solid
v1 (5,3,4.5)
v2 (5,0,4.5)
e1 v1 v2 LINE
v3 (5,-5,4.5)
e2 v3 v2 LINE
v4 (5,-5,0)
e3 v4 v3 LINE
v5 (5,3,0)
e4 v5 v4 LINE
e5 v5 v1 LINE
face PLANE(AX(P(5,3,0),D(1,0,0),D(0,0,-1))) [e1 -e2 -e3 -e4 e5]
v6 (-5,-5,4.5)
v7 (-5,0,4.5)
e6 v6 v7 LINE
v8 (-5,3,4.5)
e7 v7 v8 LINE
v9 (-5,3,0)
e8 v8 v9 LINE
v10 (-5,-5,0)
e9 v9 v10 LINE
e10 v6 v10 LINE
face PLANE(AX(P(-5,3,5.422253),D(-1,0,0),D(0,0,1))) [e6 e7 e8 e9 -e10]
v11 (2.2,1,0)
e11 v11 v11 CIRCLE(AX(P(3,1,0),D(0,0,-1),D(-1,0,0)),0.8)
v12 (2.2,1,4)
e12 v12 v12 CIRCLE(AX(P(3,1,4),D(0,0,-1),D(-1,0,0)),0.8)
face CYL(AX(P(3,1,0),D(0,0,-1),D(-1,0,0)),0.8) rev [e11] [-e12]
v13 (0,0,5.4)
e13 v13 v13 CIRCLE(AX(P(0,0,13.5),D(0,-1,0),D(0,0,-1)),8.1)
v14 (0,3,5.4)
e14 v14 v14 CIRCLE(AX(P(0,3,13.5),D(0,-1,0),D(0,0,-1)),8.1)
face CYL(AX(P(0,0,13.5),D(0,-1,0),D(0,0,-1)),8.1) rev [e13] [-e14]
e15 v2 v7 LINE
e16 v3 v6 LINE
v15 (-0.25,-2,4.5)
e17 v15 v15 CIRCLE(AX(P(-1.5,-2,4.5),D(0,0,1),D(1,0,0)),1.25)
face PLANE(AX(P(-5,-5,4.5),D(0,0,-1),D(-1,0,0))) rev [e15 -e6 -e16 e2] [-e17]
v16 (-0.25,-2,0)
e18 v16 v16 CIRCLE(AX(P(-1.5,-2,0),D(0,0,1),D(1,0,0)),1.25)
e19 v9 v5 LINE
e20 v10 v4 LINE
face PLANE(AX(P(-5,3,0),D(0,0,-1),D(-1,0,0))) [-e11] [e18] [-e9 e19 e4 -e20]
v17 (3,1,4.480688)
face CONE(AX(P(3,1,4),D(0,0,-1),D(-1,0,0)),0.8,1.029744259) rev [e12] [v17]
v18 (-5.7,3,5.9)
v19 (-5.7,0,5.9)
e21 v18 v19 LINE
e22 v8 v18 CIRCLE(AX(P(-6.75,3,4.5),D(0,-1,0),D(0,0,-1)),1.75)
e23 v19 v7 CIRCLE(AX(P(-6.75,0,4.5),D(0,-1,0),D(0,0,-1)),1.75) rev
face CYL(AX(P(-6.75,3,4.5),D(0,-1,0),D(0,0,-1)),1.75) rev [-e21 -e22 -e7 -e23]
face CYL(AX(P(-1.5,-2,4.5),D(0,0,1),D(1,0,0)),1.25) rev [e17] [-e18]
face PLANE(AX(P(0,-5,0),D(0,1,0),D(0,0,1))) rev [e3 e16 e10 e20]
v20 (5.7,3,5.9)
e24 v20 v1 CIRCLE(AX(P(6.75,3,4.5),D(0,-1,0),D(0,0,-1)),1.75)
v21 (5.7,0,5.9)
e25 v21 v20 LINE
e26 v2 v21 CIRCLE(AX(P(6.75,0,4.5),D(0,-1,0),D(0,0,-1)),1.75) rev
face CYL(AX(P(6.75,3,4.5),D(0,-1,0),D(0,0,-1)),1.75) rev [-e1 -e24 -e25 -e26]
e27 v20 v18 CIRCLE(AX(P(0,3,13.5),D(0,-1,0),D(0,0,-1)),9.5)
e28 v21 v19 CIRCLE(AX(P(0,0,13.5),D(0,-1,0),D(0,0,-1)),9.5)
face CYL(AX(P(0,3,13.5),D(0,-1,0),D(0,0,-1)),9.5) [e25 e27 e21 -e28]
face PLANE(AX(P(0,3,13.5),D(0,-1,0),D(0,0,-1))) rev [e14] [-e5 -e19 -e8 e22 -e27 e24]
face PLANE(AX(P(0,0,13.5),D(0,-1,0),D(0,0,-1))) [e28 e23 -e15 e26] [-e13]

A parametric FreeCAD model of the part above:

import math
import FreeCAD as App
import Part
import Sketcher
Q = App.Units.Quantity


def edges_at(feature, points):
    """Names of the edges that pass closest to the given points."""
    edges = feature.Shape.Edges
    near = lambda p: min(range(len(edges)), key=lambda i: edges[i].distToShape(Part.Vertex(*p))[0])
    return sorted({f"Edge{near(p) + 1}" for p in points})


def add_polygon(sketch, points):
    """Adds a closed chain of lines whose ends are joined by coincident constraints."""
    first, n = sketch.GeometryCount, len(points)
    for a, b in zip(points, points[1:] + points[:1]):
        sketch.addGeometry(Part.LineSegment(App.Vector(*a, 0), App.Vector(*b, 0)), False)
    for i in range(n):
        sketch.addConstraint(Sketcher.Constraint("Coincident", first + i, 2, first + (i + 1) % n, 1))

doc = App.newDocument("Part")
body = doc.addObject("PartDesign::Body", "Body")

# Sketch on XZ plane
sketch1 = body.newObject("Sketcher::SketchObject", "Sketch")
sketch1.AttachmentSupport = (doc.getObject("XZ_Plane"), [""])
sketch1.MapMode = "FlatFace"
sketch1.addGeometry(Part.LineSegment(App.Vector(-5, 5, 0), App.Vector(-5, 0, 0)), False)
sketch1.addGeometry(Part.LineSegment(App.Vector(-5, 0, 0), App.Vector(5, 0, 0)), False)
sketch1.addGeometry(Part.LineSegment(App.Vector(5, 0, 0), App.Vector(5, 5, 0)), False)
sketch1.addGeometry(Part.ArcOfCircle(Part.Circle(App.Vector(0, 14, 0), App.Vector(0, 0, 1), 10), math.radians(-58), math.radians(238)), False)
sketch1.addConstraint(Sketcher.Constraint("Coincident", 0, 2, 1, 1))
sketch1.addConstraint(Sketcher.Constraint("Coincident", 1, 2, 2, 1))
sketch1.addConstraint(Sketcher.Constraint("Coincident", 2, 2, 3, 1))
sketch1.addConstraint(Sketcher.Constraint("Coincident", 3, 2, 0, 1))
sketch1.addConstraint(Sketcher.Constraint("Vertical", 0))
sketch1.addConstraint(Sketcher.Constraint("Horizontal", 1))
sketch1.addConstraint(Sketcher.Constraint("Vertical", 2))
sketch1.addConstraint(Sketcher.Constraint("Symmetric", 0, 2, 1, 2, -1, 1))
sketch1.addConstraint(Sketcher.Constraint("PointOnObject", 3, 3, -2))
sketch1.addConstraint(Sketcher.Constraint("Radius", 3, Q("9.5 mm")))
sketch1.addConstraint(Sketcher.Constraint("DistanceX", 1, 1, 1, 2, Q("10 mm")))
sketch1.addConstraint(Sketcher.Constraint("DistanceY", -1, 1, 3, 3, Q("13.5 mm")))
pad1 = body.newObject("PartDesign::Pad", "Pad")
pad1.Profile = sketch1
pad1.Length = 3
pad1.Reversed = True

# Sketch on XZ plane
sketch2 = body.newObject("Sketcher::SketchObject", "Sketch001")
sketch2.AttachmentSupport = (doc.getObject("XZ_Plane"), [""])
sketch2.MapMode = "FlatFace"
add_polygon(sketch2, [(-5, 4.5), (-5, 0), (5, 0), (5, 4.5)])  # lines 0-3
sketch2.addConstraint(Sketcher.Constraint("Vertical", 0))
sketch2.addConstraint(Sketcher.Constraint("Horizontal", 1))
sketch2.addConstraint(Sketcher.Constraint("Vertical", 2))
sketch2.addConstraint(Sketcher.Constraint("Horizontal", 3))
sketch2.addConstraint(Sketcher.Constraint("Symmetric", 0, 2, 1, 2, -1, 1))
sketch2.addConstraint(Sketcher.Constraint("DistanceX", 1, 1, 1, 2, Q("10 mm")))
sketch2.addConstraint(Sketcher.Constraint("DistanceY", 0, 2, 0, 1, Q("4.5 mm")))
pad2 = body.newObject("PartDesign::Pad", "Pad001")
pad2.Profile = sketch2
pad2.Length = 5

# Sketch on XY plane
sketch3 = body.newObject("Sketcher::SketchObject", "Sketch002")
sketch3.AttachmentSupport = (doc.getObject("XY_Plane"), [""])
sketch3.MapMode = "FlatFace"
sketch3.addGeometry(Part.Circle(App.Vector(3, 1, 0), App.Vector(0, 0, 1), 0.8), False)
sketch3.addConstraint(Sketcher.Constraint("Diameter", 0, Q("1.6 mm")))
sketch3.addConstraint(Sketcher.Constraint("DistanceX", -1, 1, 0, 3, Q("3 mm")))
sketch3.addConstraint(Sketcher.Constraint("DistanceY", -1, 1, 0, 3, Q("1 mm")))
doc.recompute()
hole = body.newObject("PartDesign::Hole", "Hole")
hole.Profile = sketch3
hole.ThreadType = "None"
hole.Diameter = 1.6
hole.DepthType = "Dimension"
hole.Depth = 4
hole.DrillPoint = "Angled"
hole.DrillPointAngle = 118
hole.Reversed = True

# Sketch on XY plane
sketch4 = body.newObject("Sketcher::SketchObject", "Sketch003")
sketch4.AttachmentSupport = (doc.getObject("XY_Plane"), [""])
sketch4.MapMode = "FlatFace"
sketch4.AttachmentOffset = App.Placement(App.Vector(0, 0, 4.5), App.Rotation())
sketch4.addGeometry(Part.Circle(App.Vector(-1.5, -2, 0), App.Vector(0, 0, 1), 1.2), False)
sketch4.addConstraint(Sketcher.Constraint("Diameter", 0, Q("2.5 mm")))
sketch4.addConstraint(Sketcher.Constraint("DistanceY", 0, 3, -1, 1, Q("2 mm")))
sketch4.addConstraint(Sketcher.Constraint("DistanceX", 0, 3, -1, 1, Q("1.5 mm")))
doc.recompute()
hole2 = body.newObject("PartDesign::Hole", "Hole001")
hole2.Profile = sketch4
hole2.ThreadType = "None"
hole2.Diameter = 2.5
hole2.DepthType = "Dimension"
hole2.Depth = 4.5
hole2.DrillPoint = "Flat"

# Sketch on XZ plane
sketch5 = body.newObject("Sketcher::SketchObject", "Sketch004")
sketch5.AttachmentSupport = (doc.getObject("XZ_Plane"), [""])
sketch5.MapMode = "FlatFace"
sketch5.addGeometry(Part.Circle(App.Vector(0, 14, 0), App.Vector(0, 0, 1), 8), False)
sketch5.addConstraint(Sketcher.Constraint("PointOnObject", 0, 3, -2))
sketch5.addConstraint(Sketcher.Constraint("Diameter", 0, Q("16.2 mm")))
sketch5.addConstraint(Sketcher.Constraint("DistanceY", -1, 1, 0, 3, Q("13.5 mm")))
doc.recompute()
hole3 = body.newObject("PartDesign::Hole", "Hole002")
hole3.Profile = sketch5
hole3.ThreadType = "None"
hole3.Diameter = 16.2
hole3.DepthType = "Dimension"
hole3.Depth = 3
hole3.DrillPoint = "Flat"
doc.recompute()

fillet = body.newObject("PartDesign::Fillet", "Fillet")
fillet.Base = (hole3, edges_at(hole3, [(-5, 1.5, 5.422), (5, 1.5, 5.422)]))
fillet.Radius = 1.75

doc.recompute()
